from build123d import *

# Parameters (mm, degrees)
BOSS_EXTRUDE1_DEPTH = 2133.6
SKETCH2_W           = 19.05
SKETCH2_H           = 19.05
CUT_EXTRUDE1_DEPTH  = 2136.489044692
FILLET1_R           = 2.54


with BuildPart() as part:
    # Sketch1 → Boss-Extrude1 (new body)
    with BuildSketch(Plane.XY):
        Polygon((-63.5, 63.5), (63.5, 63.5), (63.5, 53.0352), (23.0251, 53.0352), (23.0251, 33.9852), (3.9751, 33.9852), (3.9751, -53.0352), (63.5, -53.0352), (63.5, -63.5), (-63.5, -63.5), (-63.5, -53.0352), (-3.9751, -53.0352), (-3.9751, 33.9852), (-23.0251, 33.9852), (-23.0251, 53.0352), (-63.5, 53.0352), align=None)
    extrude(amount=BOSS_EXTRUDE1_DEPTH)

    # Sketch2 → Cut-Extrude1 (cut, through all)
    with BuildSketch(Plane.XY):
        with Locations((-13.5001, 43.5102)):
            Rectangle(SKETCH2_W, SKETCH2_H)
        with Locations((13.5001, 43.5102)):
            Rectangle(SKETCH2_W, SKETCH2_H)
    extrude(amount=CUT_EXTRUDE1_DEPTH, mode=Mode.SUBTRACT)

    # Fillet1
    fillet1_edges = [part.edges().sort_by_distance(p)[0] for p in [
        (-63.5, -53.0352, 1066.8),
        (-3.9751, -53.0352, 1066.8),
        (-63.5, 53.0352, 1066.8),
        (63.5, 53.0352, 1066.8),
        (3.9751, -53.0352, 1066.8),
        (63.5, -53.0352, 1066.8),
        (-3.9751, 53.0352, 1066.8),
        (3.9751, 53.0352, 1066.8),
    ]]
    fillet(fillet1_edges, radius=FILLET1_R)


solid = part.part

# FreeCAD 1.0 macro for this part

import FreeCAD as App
import Part
import Sketcher
from FreeCAD import Vector
Q = App.Units.Quantity


def edges_at(feature, points):
    """Names of the edges that pass closest to the given points."""
    edges = feature.Shape.Edges
    near = lambda p: min(range(len(edges)), key=lambda i: edges[i].distToShape(Part.Vertex(*p))[0])
    return sorted({f"Edge{near(p) + 1}" for p in points})


def add_polygon(sketch, points):
    """Adds a closed chain of lines whose ends are joined by coincident constraints."""
    first, n = sketch.GeometryCount, len(points)
    for a, b in zip(points, points[1:] + points[:1]):
        sketch.addGeometry(Part.LineSegment(App.Vector(*a, 0), App.Vector(*b, 0)), False)
    for i in range(n):
        sketch.addConstraint(Sketcher.Constraint("Coincident", first + i, 2, first + (i + 1) % n, 1))

doc = App.newDocument("Part")
body = doc.addObject("PartDesign::Body", "Body")

sketch1 = body.newObject("Sketcher::SketchObject", "Sketch")
sketch1.AttachmentSupport = (doc.getObject("XY_Plane"), [""])
sketch1.MapMode = "FlatFace"
add_polygon(sketch1, [(64, 64), (-64, 64), (-64, 53), (-23, 53), (-23, 34), (-4, 34), (-4, -53), (-64, -53), (-64, -64), (64, -64), (64, -53), (4, -53), (4, 34), (23, 34), (23, 53), (64, 53)])
sketch1.addConstraint([
    Sketcher.Constraint("Horizontal", 0),
    Sketcher.Constraint("Vertical", 1),
    Sketcher.Constraint("Horizontal", 2),
    Sketcher.Constraint("Vertical", 3),
    Sketcher.Constraint("Horizontal", 4),
    Sketcher.Constraint("Vertical", 5),
    Sketcher.Constraint("Horizontal", 6),
    Sketcher.Constraint("Vertical", 7),
    Sketcher.Constraint("Horizontal", 8),
    Sketcher.Constraint("Vertical", 9),
    Sketcher.Constraint("Horizontal", 10),
    Sketcher.Constraint("Vertical", 11),
    Sketcher.Constraint("Horizontal", 12),
    Sketcher.Constraint("Vertical", 13),
    Sketcher.Constraint("Horizontal", 14),
    Sketcher.Constraint("Vertical", 15),
    Sketcher.Constraint("Symmetric", 0, 2, 8, 2, -1, 1),
    Sketcher.Constraint("Symmetric", 6, 2, 14, 2, -1, 1),
    Sketcher.Constraint("Symmetric", 6, 2, 9, 2, -2),
    Sketcher.Constraint("Symmetric", 4, 2, 11, 2, -2),
    Sketcher.Constraint("Symmetric", 2, 2, 13, 2, -2),
    Sketcher.Constraint("Equal", 12, 3),
    Sketcher.Constraint("DistanceX", 0, 2, 0, 1, Q("5 in")),
    Sketcher.Constraint("DistanceX", 4, 1, 4, 2, Q("0.75 in")),
    Sketcher.Constraint("DistanceY", -1, 1, 0, 2, Q("2.5 in")),
    Sketcher.Constraint("DistanceY", 1, 2, 1, 1, Q("0.412 in")),
    Sketcher.Constraint("DistanceX", 2, 1, 2, 2, Q("1.5935 in")),
])
pad1 = body.newObject("PartDesign::Pad", "Pad")
pad1.Profile = sketch1
pad1.Length = Q("84 in")

sketch2 = body.newObject("Sketcher::SketchObject", "Sketch001")
sketch2.AttachmentSupport = (doc.getObject("XY_Plane"), [""])
sketch2.MapMode = "FlatFace"
add_polygon(sketch2, [(-23, 53), (-23, 34), (-4, 34), (-4, 53)])
add_polygon(sketch2, [(4, 53), (4, 34), (23, 34), (23, 53)])
sketch2.addConstraint([
    Sketcher.Constraint("Vertical", 0),
    Sketcher.Constraint("Horizontal", 1),
    Sketcher.Constraint("Vertical", 2),
    Sketcher.Constraint("Horizontal", 3),
    Sketcher.Constraint("Vertical", 4),
    Sketcher.Constraint("Horizontal", 5),
    Sketcher.Constraint("Vertical", 6),
    Sketcher.Constraint("Horizontal", 7),
    Sketcher.Constraint("Symmetric", 1, 2, 4, 2, -2),
    Sketcher.Constraint("Symmetric", 3, 2, 6, 2, -2),
    Sketcher.Constraint("Equal", 7, 0),
    Sketcher.Constraint("DistanceX", 1, 1, 1, 2, Q("0.75 in")),
    Sketcher.Constraint("DistanceY", -1, 1, 0, 2, Q("1.338 in")),
    Sketcher.Constraint("DistanceX", 1, 2, 4, 2, Q("0.313 in")),
])
pocket1 = body.newObject("PartDesign::Pocket", "Pocket")
pocket1.Profile = sketch2
pocket1.Type = "ThroughAll"
pocket1.Reversed = True
doc.recompute()

fillet = body.newObject("PartDesign::Fillet", "Fillet")
fillet.Base = (pocket1, edges_at(pocket1, [
    (-63.5, -53.035, 1066.8),
    (-3.975, -53.035, 1066.8),
    (-63.5, 53.035, 1066.8),
    (63.5, 53.035, 1066.8),
    (3.975, -53.035, 1066.8),
    (63.5, -53.035, 1066.8),
    (-3.975, 53.035, 1066.8),
    (3.975, 53.035, 1066.8),
]))
fillet.Radius = Q("0.1 in")

doc.recompute()
